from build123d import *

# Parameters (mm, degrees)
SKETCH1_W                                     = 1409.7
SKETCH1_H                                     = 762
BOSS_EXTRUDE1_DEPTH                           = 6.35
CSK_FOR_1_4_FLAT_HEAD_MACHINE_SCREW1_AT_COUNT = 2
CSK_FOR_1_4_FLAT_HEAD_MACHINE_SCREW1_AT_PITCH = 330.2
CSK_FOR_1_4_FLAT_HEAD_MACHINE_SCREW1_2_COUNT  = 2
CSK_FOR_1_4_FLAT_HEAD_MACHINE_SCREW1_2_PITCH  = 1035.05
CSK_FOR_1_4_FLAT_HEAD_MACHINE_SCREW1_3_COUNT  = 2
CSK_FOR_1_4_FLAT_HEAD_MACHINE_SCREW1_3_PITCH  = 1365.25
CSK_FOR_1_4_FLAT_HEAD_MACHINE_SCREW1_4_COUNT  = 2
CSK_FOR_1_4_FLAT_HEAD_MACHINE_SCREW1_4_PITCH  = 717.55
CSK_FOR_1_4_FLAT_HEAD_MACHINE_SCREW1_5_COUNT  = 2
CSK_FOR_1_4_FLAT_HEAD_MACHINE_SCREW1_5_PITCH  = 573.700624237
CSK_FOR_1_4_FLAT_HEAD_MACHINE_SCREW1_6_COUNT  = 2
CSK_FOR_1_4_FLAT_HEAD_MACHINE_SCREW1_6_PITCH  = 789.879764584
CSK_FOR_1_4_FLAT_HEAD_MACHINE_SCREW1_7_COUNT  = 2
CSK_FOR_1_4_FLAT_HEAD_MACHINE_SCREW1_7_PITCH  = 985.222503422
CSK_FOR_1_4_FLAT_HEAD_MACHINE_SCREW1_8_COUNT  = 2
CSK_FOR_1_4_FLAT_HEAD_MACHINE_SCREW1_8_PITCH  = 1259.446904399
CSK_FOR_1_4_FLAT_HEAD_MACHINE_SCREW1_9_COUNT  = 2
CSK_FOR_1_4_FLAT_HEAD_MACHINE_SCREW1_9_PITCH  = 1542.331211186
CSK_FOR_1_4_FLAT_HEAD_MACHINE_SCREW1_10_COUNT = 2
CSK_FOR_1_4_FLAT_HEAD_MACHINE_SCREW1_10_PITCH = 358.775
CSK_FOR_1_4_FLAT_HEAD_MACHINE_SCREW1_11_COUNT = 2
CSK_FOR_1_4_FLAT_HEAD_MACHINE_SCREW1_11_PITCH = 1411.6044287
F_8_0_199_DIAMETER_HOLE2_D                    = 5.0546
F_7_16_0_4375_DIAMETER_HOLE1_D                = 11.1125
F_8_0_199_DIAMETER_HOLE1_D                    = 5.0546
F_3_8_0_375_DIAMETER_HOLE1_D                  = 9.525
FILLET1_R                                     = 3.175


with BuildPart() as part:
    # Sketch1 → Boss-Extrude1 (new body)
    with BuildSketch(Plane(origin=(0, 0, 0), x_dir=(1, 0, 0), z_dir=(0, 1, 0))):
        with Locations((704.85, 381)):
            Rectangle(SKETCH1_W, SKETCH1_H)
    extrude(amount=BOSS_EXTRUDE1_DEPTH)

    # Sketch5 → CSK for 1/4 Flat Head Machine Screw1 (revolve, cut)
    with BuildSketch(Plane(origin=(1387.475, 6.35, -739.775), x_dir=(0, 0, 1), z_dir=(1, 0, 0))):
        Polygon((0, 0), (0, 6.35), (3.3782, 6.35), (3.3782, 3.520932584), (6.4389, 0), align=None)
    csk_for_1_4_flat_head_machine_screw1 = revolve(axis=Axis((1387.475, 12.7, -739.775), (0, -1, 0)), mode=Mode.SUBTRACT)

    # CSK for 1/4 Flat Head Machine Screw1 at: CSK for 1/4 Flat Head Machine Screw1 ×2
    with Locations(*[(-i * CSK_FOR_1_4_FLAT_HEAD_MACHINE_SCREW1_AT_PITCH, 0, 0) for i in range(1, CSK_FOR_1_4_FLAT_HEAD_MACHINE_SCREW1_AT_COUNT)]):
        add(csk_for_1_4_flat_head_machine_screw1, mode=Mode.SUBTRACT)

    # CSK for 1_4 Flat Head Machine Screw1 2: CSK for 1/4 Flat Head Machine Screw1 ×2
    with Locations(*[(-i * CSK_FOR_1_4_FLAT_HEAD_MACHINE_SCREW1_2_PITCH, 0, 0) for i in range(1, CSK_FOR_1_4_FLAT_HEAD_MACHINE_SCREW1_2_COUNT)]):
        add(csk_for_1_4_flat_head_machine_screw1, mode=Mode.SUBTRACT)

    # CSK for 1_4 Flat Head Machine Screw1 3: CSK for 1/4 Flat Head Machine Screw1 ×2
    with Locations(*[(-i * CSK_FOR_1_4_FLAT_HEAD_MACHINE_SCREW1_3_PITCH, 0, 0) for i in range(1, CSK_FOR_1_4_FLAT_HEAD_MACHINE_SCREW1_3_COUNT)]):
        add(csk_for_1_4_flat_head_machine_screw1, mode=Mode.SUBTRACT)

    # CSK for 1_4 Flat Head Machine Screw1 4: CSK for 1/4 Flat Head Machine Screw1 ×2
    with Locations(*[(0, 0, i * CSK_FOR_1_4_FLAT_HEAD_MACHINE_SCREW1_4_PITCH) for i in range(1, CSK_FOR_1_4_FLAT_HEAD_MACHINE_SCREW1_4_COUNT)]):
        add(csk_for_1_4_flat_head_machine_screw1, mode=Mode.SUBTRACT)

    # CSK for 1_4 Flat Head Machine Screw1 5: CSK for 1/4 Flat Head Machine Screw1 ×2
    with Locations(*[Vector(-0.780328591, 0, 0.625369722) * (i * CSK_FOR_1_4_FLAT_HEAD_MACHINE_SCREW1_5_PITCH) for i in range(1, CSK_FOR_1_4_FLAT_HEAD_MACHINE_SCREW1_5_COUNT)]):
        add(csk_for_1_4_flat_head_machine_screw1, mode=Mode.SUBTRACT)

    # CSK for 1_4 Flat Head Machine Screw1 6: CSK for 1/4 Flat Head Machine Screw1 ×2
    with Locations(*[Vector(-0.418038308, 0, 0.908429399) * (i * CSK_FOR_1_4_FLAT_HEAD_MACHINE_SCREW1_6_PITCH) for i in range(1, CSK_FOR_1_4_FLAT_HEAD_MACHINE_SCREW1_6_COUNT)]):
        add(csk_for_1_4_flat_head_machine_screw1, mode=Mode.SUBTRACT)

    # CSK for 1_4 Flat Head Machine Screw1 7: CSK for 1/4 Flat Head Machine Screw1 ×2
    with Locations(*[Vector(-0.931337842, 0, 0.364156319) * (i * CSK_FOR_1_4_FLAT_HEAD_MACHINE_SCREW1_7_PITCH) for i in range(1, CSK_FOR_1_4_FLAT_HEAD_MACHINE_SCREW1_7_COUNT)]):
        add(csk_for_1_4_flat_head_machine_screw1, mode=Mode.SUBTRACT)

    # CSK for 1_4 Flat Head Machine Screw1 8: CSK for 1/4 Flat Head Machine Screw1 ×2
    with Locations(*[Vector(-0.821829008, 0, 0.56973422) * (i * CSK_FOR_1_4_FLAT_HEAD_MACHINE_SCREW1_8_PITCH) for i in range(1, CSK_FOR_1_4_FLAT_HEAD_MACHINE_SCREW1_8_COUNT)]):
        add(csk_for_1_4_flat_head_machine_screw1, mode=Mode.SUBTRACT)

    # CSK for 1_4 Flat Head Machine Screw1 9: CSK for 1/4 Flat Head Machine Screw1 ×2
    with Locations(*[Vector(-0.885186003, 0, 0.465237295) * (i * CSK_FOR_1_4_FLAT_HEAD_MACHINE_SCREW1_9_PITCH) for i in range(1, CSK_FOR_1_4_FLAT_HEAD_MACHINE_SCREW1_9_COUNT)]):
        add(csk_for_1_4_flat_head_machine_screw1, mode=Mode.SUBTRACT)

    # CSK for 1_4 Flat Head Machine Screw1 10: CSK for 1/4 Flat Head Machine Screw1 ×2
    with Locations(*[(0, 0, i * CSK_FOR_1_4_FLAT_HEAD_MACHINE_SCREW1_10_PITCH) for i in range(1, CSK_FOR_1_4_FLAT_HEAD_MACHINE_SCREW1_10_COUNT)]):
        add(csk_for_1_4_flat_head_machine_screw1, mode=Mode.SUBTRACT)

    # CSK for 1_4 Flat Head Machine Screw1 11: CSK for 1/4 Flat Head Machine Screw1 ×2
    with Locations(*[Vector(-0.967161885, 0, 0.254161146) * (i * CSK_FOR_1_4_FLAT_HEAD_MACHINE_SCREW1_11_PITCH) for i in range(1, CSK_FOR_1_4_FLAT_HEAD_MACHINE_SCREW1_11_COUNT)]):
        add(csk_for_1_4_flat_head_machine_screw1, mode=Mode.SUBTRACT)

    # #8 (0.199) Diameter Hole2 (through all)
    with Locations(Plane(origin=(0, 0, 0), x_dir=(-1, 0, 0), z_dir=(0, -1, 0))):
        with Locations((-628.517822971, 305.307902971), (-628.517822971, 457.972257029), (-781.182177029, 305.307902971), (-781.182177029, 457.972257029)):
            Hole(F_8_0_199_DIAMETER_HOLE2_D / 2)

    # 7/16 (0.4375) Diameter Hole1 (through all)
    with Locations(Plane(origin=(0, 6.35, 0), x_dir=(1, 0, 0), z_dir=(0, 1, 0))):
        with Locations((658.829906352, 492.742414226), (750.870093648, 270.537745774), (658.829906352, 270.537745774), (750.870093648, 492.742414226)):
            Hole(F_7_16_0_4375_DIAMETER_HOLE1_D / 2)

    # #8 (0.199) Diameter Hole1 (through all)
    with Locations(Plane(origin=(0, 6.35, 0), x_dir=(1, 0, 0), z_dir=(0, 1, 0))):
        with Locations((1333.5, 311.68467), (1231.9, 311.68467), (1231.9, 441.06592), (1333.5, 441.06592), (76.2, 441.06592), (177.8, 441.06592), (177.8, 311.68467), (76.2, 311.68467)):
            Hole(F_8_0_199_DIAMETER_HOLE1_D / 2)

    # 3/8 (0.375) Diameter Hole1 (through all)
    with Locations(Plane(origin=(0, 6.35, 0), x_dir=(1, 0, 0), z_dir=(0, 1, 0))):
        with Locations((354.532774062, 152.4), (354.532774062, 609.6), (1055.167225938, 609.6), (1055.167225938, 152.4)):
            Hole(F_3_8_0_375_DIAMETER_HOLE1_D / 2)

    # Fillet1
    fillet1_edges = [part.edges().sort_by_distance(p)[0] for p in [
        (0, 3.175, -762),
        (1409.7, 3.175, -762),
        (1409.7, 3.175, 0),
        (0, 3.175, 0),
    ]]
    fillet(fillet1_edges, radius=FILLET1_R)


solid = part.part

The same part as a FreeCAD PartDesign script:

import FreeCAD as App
import Part
import Sketcher
from FreeCAD import Vector
Q = App.Units.Quantity


def edges_at(feature, points):
    """Names of the edges that pass closest to the given points."""
    edges = feature.Shape.Edges
    near = lambda p: min(range(len(edges)), key=lambda i: edges[i].distToShape(Part.Vertex(*p))[0])
    return sorted({f"Edge{near(p) + 1}" for p in points})

doc = App.newDocument("Part")
body = doc.addObject("PartDesign::Body", "Body")

# Sketch on XZ plane
sketch1 = body.newObject("Sketcher::SketchObject", "Sketch")
sketch1.AttachmentSupport = (doc.getObject("XZ_Plane"), [""])
sketch1.MapMode = "FlatFace"
sketch1.addGeometry(Part.LineSegment(Vector(0, -762, 0), Vector(0, 0, 0)), False)
sketch1.addGeometry(Part.LineSegment(Vector(0, 0, 0), Vector(1410, 0, 0)), False)
sketch1.addGeometry(Part.LineSegment(Vector(1410, 0, 0), Vector(1410, -762, 0)), False)
sketch1.addGeometry(Part.LineSegment(Vector(1410, -762, 0), Vector(0, -762, 0)), False)
sketch1.addConstraint(Sketcher.Constraint("Coincident", 0, 2, 1, 1))
sketch1.addConstraint(Sketcher.Constraint("Coincident", 1, 2, 2, 1))
sketch1.addConstraint(Sketcher.Constraint("Coincident", 2, 2, 3, 1))
sketch1.addConstraint(Sketcher.Constraint("Coincident", 3, 2, 0, 1))
sketch1.addConstraint(Sketcher.Constraint("Vertical", 0))
sketch1.addConstraint(Sketcher.Constraint("Horizontal", 1))
sketch1.addConstraint(Sketcher.Constraint("Vertical", 2))
sketch1.addConstraint(Sketcher.Constraint("Horizontal", 3))
sketch1.addConstraint(Sketcher.Constraint("Coincident", 0, 2, -1, 1))
sketch1.addConstraint(Sketcher.Constraint("DistanceY", 0, 1, 0, 2, Q("30 in")))
sketch1.addConstraint(Sketcher.Constraint("DistanceX", 1, 1, 1, 2, Q("55.5 in")))
pad1 = body.newObject("PartDesign::Pad", "Pad")
pad1.Profile = sketch1
pad1.Length = Q("0.25 in")
pad1.Reversed = True

# Sketch on YZ plane
sketch2 = body.newObject("Sketcher::SketchObject", "Sketch001")
sketch2.AttachmentSupport = (doc.getObject("YZ_Plane"), [""])
sketch2.MapMode = "FlatFace"
sketch2.AttachmentOffset = App.Placement(Vector(0, 0, 54.625 * 25.4), App.Rotation())
sketch2.addGeometry(Part.LineSegment(Vector(0, -739.8, 0), Vector(6.3, -739.8, 0)), False)
sketch2.addGeometry(Part.LineSegment(Vector(6.3, -739.8, 0), Vector(6.3, -733.3, 0)), False)
sketch2.addGeometry(Part.LineSegment(Vector(6.3, -733.3, 0), Vector(2.8, -736.4, 0)), False)
sketch2.addGeometry(Part.LineSegment(Vector(2.8, -736.4, 0), Vector(0, -736.4, 0)), False)
sketch2.addGeometry(Part.LineSegment(Vector(0, -736.4, 0), Vector(0, -739.8, 0)), False)
sketch2.addGeometry(Part.LineSegment(Vector(6.3, -739.8, 0), Vector(0, -739.8, 0)), True)  # axis
sketch2.addConstraint(Sketcher.Constraint("Coincident", 0, 2, 1, 1))
sketch2.addConstraint(Sketcher.Constraint("Coincident", 1, 2, 2, 1))
sketch2.addConstraint(Sketcher.Constraint("Coincident", 2, 2, 3, 1))
sketch2.addConstraint(Sketcher.Constraint("Coincident", 3, 2, 4, 1))
sketch2.addConstraint(Sketcher.Constraint("Coincident", 4, 2, 0, 1))
sketch2.addConstraint(Sketcher.Constraint("Horizontal", 0))
sketch2.addConstraint(Sketcher.Constraint("Vertical", 1))
sketch2.addConstraint(Sketcher.Constraint("Horizontal", 3))
sketch2.addConstraint(Sketcher.Constraint("Vertical", 4))
sketch2.addConstraint(Sketcher.Constraint("Horizontal", 5))
sketch2.addConstraint(Sketcher.Constraint("Coincident", 5, 1, 0, 2))
sketch2.addConstraint(Sketcher.Constraint("PointOnObject", 3, 2, -2))
sketch2.addConstraint(Sketcher.Constraint("PointOnObject", 5, 2, -2))
sketch2.addConstraint(Sketcher.Constraint("Angle", 2, Q("-139 deg")))
sketch2.addConstraint(Sketcher.Constraint("DistanceX", 0, 1, 0, 2, Q("0.25 in")))
sketch2.addConstraint(Sketcher.Constraint("DistanceY", 4, 2, 4, 1, Q("0.133 in")))
sketch2.addConstraint(Sketcher.Constraint("DistanceY", 1, 1, 1, 2, Q("0.2535 in")))
sketch2.addConstraint(Sketcher.Constraint("DistanceY", 0, 2, -1, 1, Q("29.125 in")))
groove = body.newObject("PartDesign::Groove", "Groove")
groove.Profile = sketch2
groove.ReferenceAxis = (sketch2, ["Axis0"])
groove.Angle = 360
doc.recompute()

linearpattern = body.newObject("PartDesign::LinearPattern", "LinearPattern")
linearpattern.Originals = [groove]
linearpattern.Direction = (doc.getObject("X_Axis"), [""])
linearpattern.Mode = "offset"
linearpattern.Offset = Q("13 in")
linearpattern.Occurrences = 2
linearpattern.Reversed = True
body.Tip = linearpattern
doc.recompute()

linearpattern2 = body.newObject("PartDesign::LinearPattern", "LinearPattern001")
linearpattern2.Originals = [groove]
linearpattern2.Direction = (doc.getObject("X_Axis"), [""])
linearpattern2.Mode = "offset"
linearpattern2.Offset = Q("40.75 in")
linearpattern2.Occurrences = 2
linearpattern2.Reversed = True
body.Tip = linearpattern2
doc.recompute()

linearpattern3 = body.newObject("PartDesign::LinearPattern", "LinearPattern002")
linearpattern3.Originals = [groove]
linearpattern3.Direction = (doc.getObject("X_Axis"), [""])
linearpattern3.Mode = "offset"
linearpattern3.Offset = Q("53.75 in")
linearpattern3.Occurrences = 2
linearpattern3.Reversed = True
body.Tip = linearpattern3
doc.recompute()

linearpattern4 = body.newObject("PartDesign::LinearPattern", "LinearPattern003")
linearpattern4.Originals = [groove]
linearpattern4.Direction = (doc.getObject("Z_Axis"), [""])
linearpattern4.Mode = "offset"
linearpattern4.Offset = Q("28.25 in")
linearpattern4.Occurrences = 2
body.Tip = linearpattern4
doc.recompute()

datumline = body.newObject("PartDesign::Line", "DatumLine")
datumline.Placement = App.Placement(Vector(0, 0, 0), App.Rotation(Vector(0, 0, 1), Vector(-0.780328591, 0, 0.625369722)))
linearpattern5 = body.newObject("PartDesign::LinearPattern", "LinearPattern004")
linearpattern5.Originals = [groove]
linearpattern5.Direction = (datumline, [""])
linearpattern5.Mode = "offset"
linearpattern5.Offset = 573.700624
linearpattern5.Occurrences = 2
body.Tip = linearpattern5
doc.recompute()

datumline2 = body.newObject("PartDesign::Line", "DatumLine001")
datumline2.Placement = App.Placement(Vector(0, 0, 0), App.Rotation(Vector(0, 0, 1), Vector(-0.418038308, 0, 0.908429399)))
linearpattern6 = body.newObject("PartDesign::LinearPattern", "LinearPattern005")
linearpattern6.Originals = [groove]
linearpattern6.Direction = (datumline2, [""])
linearpattern6.Mode = "offset"
linearpattern6.Offset = 789.879765
linearpattern6.Occurrences = 2
body.Tip = linearpattern6
doc.recompute()

datumline3 = body.newObject("PartDesign::Line", "DatumLine002")
datumline3.Placement = App.Placement(Vector(0, 0, 0), App.Rotation(Vector(0, 0, 1), Vector(-0.931337842, 0, 0.364156319)))
linearpattern7 = body.newObject("PartDesign::LinearPattern", "LinearPattern006")
linearpattern7.Originals = [groove]
linearpattern7.Direction = (datumline3, [""])
linearpattern7.Mode = "offset"
linearpattern7.Offset = 985.222504
linearpattern7.Occurrences = 2
body.Tip = linearpattern7
doc.recompute()

datumline4 = body.newObject("PartDesign::Line", "DatumLine003")
datumline4.Placement = App.Placement(Vector(0, 0, 0), App.Rotation(Vector(0, 0, 1), Vector(-0.821829008, 0, 0.56973422)))
linearpattern8 = body.newObject("PartDesign::LinearPattern", "LinearPattern007")
linearpattern8.Originals = [groove]
linearpattern8.Direction = (datumline4, [""])
linearpattern8.Mode = "offset"
linearpattern8.Offset = 1259.446904
linearpattern8.Occurrences = 2
body.Tip = linearpattern8
doc.recompute()

datumline5 = body.newObject("PartDesign::Line", "DatumLine004")
datumline5.Placement = App.Placement(Vector(0, 0, 0), App.Rotation(Vector(0, 0, 1), Vector(-0.885186003, 0, 0.465237295)))
linearpattern9 = body.newObject("PartDesign::LinearPattern", "LinearPattern008")
linearpattern9.Originals = [groove]
linearpattern9.Direction = (datumline5, [""])
linearpattern9.Mode = "offset"
linearpattern9.Offset = 1542.331212
linearpattern9.Occurrences = 2
body.Tip = linearpattern9
doc.recompute()

linearpattern10 = body.newObject("PartDesign::LinearPattern", "LinearPattern009")
linearpattern10.Originals = [groove]
linearpattern10.Direction = (doc.getObject("Z_Axis"), [""])
linearpattern10.Mode = "offset"
linearpattern10.Offset = Q("14.125 in")
linearpattern10.Occurrences = 2
body.Tip = linearpattern10
doc.recompute()

datumline6 = body.newObject("PartDesign::Line", "DatumLine005")
datumline6.Placement = App.Placement(Vector(0, 0, 0), App.Rotation(Vector(0, 0, 1), Vector(-0.967161885, 0, 0.254161146)))
linearpattern11 = body.newObject("PartDesign::LinearPattern", "LinearPattern010")
linearpattern11.Originals = [groove]
linearpattern11.Direction = (datumline6, [""])
linearpattern11.Mode = "offset"
linearpattern11.Offset = 1411.604429
linearpattern11.Occurrences = 2
body.Tip = linearpattern11

# Sketch on XZ plane
sketch3 = body.newObject("Sketcher::SketchObject", "Sketch002")
sketch3.AttachmentSupport = (doc.getObject("XZ_Plane"), [""])
sketch3.MapMode = "FlatFace"
sketch3.addGeometry(Part.Circle(Vector(628.5, -305.3, 0), Vector(0, 0, 1), 2.5), False)
sketch3.addGeometry(Part.Circle(Vector(628.5, -458, 0), Vector(0, 0, 1), 2.5), False)
sketch3.addGeometry(Part.Circle(Vector(781.2, -305.3, 0), Vector(0, 0, 1), 2.5), False)
sketch3.addGeometry(Part.Circle(Vector(781.2, -458, 0), Vector(0, 0, 1), 2.5), False)
sketch3.addConstraint(Sketcher.Constraint("Equal", 0, 1))
sketch3.addConstraint(Sketcher.Constraint("Equal", 1, 2))
sketch3.addConstraint(Sketcher.Constraint("Equal", 2, 3))
sketch3.addConstraint(Sketcher.Constraint("Horizontal", 0, 3, 2, 3))
sketch3.addConstraint(Sketcher.Constraint("Horizontal", 1, 3, 3, 3))
sketch3.addConstraint(Sketcher.Constraint("Vertical", 0, 3, 1, 3))
sketch3.addConstraint(Sketcher.Constraint("Vertical", 2, 3, 3, 3))
sketch3.addConstraint(Sketcher.Constraint("Diameter", 0, Q("0.199 in")))
sketch3.addConstraint(Sketcher.Constraint("DistanceX", -1, 1, 0, 3, 628.517823))
sketch3.addConstraint(Sketcher.Constraint("DistanceY", 0, 3, -1, 1, 305.307903))
sketch3.addConstraint(Sketcher.Constraint("DistanceY", 1, 3, -1, 1, 457.972257))
sketch3.addConstraint(Sketcher.Constraint("DistanceX", -1, 1, 2, 3, 781.182177))
doc.recompute()
hole = body.newObject("PartDesign::Hole", "Hole")
hole.Profile = sketch3
hole.ThreadType = "None"
hole.Diameter = Q("0.199 in")
hole.DepthType = "ThroughAll"

# Sketch on XZ plane
sketch4 = body.newObject("Sketcher::SketchObject", "Sketch003")
sketch4.AttachmentSupport = (doc.getObject("XZ_Plane"), [""])
sketch4.MapMode = "FlatFace"
sketch4.AttachmentOffset = App.Placement(Vector(0, 0, -0.25 * 25.4), App.Rotation())
sketch4.addGeometry(Part.Circle(Vector(659, -493, 0), Vector(0, 0, 1), 6), False)
sketch4.addGeometry(Part.Circle(Vector(751, -271, 0), Vector(0, 0, 1), 6), False)
sketch4.addGeometry(Part.Circle(Vector(659, -271, 0), Vector(0, 0, 1), 6), False)
sketch4.addGeometry(Part.Circle(Vector(751, -493, 0), Vector(0, 0, 1), 6), False)
sketch4.addConstraint(Sketcher.Constraint("Equal", 0, 1))
sketch4.addConstraint(Sketcher.Constraint("Equal", 1, 2))
sketch4.addConstraint(Sketcher.Constraint("Equal", 2, 3))
sketch4.addConstraint(Sketcher.Constraint("Horizontal", 1, 3, 2, 3))
sketch4.addConstraint(Sketcher.Constraint("Horizontal", 0, 3, 3, 3))
sketch4.addConstraint(Sketcher.Constraint("Vertical", 0, 3, 2, 3))
sketch4.addConstraint(Sketcher.Constraint("Vertical", 1, 3, 3, 3))
sketch4.addConstraint(Sketcher.Constraint("Diameter", 0, Q("0.4375 in")))
sketch4.addConstraint(Sketcher.Constraint("DistanceY", 0, 3, 1, 3, 222.204668))
sketch4.addConstraint(Sketcher.Constraint("DistanceX", -1, 1, 0, 3, 658.829906))
sketch4.addConstraint(Sketcher.Constraint("DistanceY", 0, 3, -1, 1, 492.742414))
sketch4.addConstraint(Sketcher.Constraint("DistanceX", -1, 1, 1, 3, 750.870094))
doc.recompute()
hole2 = body.newObject("PartDesign::Hole", "Hole001")
hole2.Profile = sketch4
hole2.ThreadType = "None"
hole2.Diameter = Q("0.4375 in")
hole2.DepthType = "ThroughAll"
hole2.Reversed = True

# Sketch on XZ plane
sketch5 = body.newObject("Sketcher::SketchObject", "Sketch004")
sketch5.AttachmentSupport = (doc.getObject("XZ_Plane"), [""])
sketch5.MapMode = "FlatFace"
sketch5.AttachmentOffset = App.Placement(Vector(0, 0, -0.25 * 25.4), App.Rotation())
sketch5.addGeometry(Part.Circle(Vector(1333.5, -311.7, 0), Vector(0, 0, 1), 2.5), False)
sketch5.addGeometry(Part.Circle(Vector(1231.9, -311.7, 0), Vector(0, 0, 1), 2.5), False)
sketch5.addGeometry(Part.Circle(Vector(1231.9, -441.1, 0), Vector(0, 0, 1), 2.5), False)
sketch5.addGeometry(Part.Circle(Vector(1333.5, -441.1, 0), Vector(0, 0, 1), 2.5), False)
sketch5.addGeometry(Part.Circle(Vector(76.2, -441.1, 0), Vector(0, 0, 1), 2.5), False)
sketch5.addGeometry(Part.Circle(Vector(177.8, -441.1, 0), Vector(0, 0, 1), 2.5), False)
sketch5.addGeometry(Part.Circle(Vector(177.8, -311.7, 0), Vector(0, 0, 1), 2.5), False)
sketch5.addGeometry(Part.Circle(Vector(76.2, -311.7, 0), Vector(0, 0, 1), 2.5), False)
sketch5.addConstraint(Sketcher.Constraint("Equal", 0, 1))
sketch5.addConstraint(Sketcher.Constraint("Equal", 1, 2))
sketch5.addConstraint(Sketcher.Constraint("Equal", 2, 3))
sketch5.addConstraint(Sketcher.Constraint("Equal", 3, 4))
sketch5.addConstraint(Sketcher.Constraint("Equal", 4, 5))
sketch5.addConstraint(Sketcher.Constraint("Equal", 5, 6))
sketch5.addConstraint(Sketcher.Constraint("Equal", 6, 7))
sketch5.addConstraint(Sketcher.Constraint("Horizontal", 0, 3, 1, 3))
sketch5.addConstraint(Sketcher.Constraint("Horizontal", 2, 3, 3, 3))
sketch5.addConstraint(Sketcher.Constraint("Horizontal", 3, 3, 4, 3))
sketch5.addConstraint(Sketcher.Constraint("Horizontal", 4, 3, 5, 3))
sketch5.addConstraint(Sketcher.Constraint("Horizontal", 1, 3, 6, 3))
sketch5.addConstraint(Sketcher.Constraint("Horizontal", 6, 3, 7, 3))
sketch5.addConstraint(Sketcher.Constraint("Vertical", 1, 3, 2, 3))
sketch5.addConstraint(Sketcher.Constraint("Vertical", 0, 3, 3, 3))
sketch5.addConstraint(Sketcher.Constraint("Vertical", 5, 3, 6, 3))
sketch5.addConstraint(Sketcher.Constraint("Vertical", 4, 3, 7, 3))
sketch5.addConstraint(Sketcher.Constraint("Diameter", 0, Q("0.199 in")))
sketch5.addConstraint(Sketcher.Constraint("DistanceX", -1, 1, 4, 3, Q("3 in")))
sketch5.addConstraint(Sketcher.Constraint("DistanceX", -1, 1, 5, 3, Q("7 in")))
sketch5.addConstraint(Sketcher.Constraint("DistanceX", 1, 3, 0, 3, Q("4 in")))
sketch5.addConstraint(Sketcher.Constraint("DistanceX", -1, 1, 0, 3, Q("52.5 in")))
sketch5.addConstraint(Sketcher.Constraint("DistanceY", 2, 3, 1, 3, Q("5.09375 in")))
sketch5.addConstraint(Sketcher.Constraint("DistanceY", 2, 3, -1, 1, Q("17.3648 in")))
doc.recompute()
hole3 = body.newObject("PartDesign::Hole", "Hole002")
hole3.Profile = sketch5
hole3.ThreadType = "None"
hole3.Diameter = Q("0.199 in")
hole3.DepthType = "ThroughAll"
hole3.Reversed = True

# Sketch on XZ plane
sketch6 = body.newObject("Sketcher::SketchObject", "Sketch005")
sketch6.AttachmentSupport = (doc.getObject("XZ_Plane"), [""])
sketch6.MapMode = "FlatFace"
sketch6.AttachmentOffset = App.Placement(Vector(0, 0, -0.25 * 25.4), App.Rotation())
sketch6.addGeometry(Part.Circle(Vector(354.5, -152.4, 0), Vector(0, 0, 1), 4.8), False)
sketch6.addGeometry(Part.Circle(Vector(354.5, -609.6, 0), Vector(0, 0, 1), 4.8), False)
sketch6.addGeometry(Part.Circle(Vector(1055.2, -609.6, 0), Vector(0, 0, 1), 4.8), False)
sketch6.addGeometry(Part.Circle(Vector(1055.2, -152.4, 0), Vector(0, 0, 1), 4.8), False)
sketch6.addConstraint(Sketcher.Constraint("Equal", 0, 1))
sketch6.addConstraint(Sketcher.Constraint("Equal", 1, 2))
sketch6.addConstraint(Sketcher.Constraint("Equal", 2, 3))
sketch6.addConstraint(Sketcher.Constraint("Horizontal", 1, 3, 2, 3))
sketch6.addConstraint(Sketcher.Constraint("Horizontal", 0, 3, 3, 3))
sketch6.addConstraint(Sketcher.Constraint("Vertical", 0, 3, 1, 3))
sketch6.addConstraint(Sketcher.Constraint("Vertical", 2, 3, 3, 3))
sketch6.addConstraint(Sketcher.Constraint("Diameter", 0, Q("0.375 in")))
sketch6.addConstraint(Sketcher.Constraint("DistanceY", 0, 3, -1, 1, Q("6 in")))
sketch6.addConstraint(Sketcher.Constraint("DistanceY", 1, 3, -1, 1, Q("24 in")))
sketch6.addConstraint(Sketcher.Constraint("DistanceX", 1, 3, 2, 3, 700.634452))
sketch6.addConstraint(Sketcher.Constraint("DistanceX", -1, 1, 0, 3, 354.532774))
doc.recompute()
hole4 = body.newObject("PartDesign::Hole", "Hole003")
hole4.Profile = sketch6
hole4.ThreadType = "None"
hole4.Diameter = Q("0.375 in")
hole4.DepthType = "ThroughAll"
hole4.Reversed = True
doc.recompute()

fillet = body.newObject("PartDesign::Fillet", "Fillet")
fillet.Base = (hole4, edges_at(hole4, [
    (0, 3.175, -762),
    (1409.7, 3.175, -762),
    (1409.7, 3.175, 0),
    (0, 3.175, 0),
]))
fillet.Radius = Q("0.125 in")

doc.recompute()
